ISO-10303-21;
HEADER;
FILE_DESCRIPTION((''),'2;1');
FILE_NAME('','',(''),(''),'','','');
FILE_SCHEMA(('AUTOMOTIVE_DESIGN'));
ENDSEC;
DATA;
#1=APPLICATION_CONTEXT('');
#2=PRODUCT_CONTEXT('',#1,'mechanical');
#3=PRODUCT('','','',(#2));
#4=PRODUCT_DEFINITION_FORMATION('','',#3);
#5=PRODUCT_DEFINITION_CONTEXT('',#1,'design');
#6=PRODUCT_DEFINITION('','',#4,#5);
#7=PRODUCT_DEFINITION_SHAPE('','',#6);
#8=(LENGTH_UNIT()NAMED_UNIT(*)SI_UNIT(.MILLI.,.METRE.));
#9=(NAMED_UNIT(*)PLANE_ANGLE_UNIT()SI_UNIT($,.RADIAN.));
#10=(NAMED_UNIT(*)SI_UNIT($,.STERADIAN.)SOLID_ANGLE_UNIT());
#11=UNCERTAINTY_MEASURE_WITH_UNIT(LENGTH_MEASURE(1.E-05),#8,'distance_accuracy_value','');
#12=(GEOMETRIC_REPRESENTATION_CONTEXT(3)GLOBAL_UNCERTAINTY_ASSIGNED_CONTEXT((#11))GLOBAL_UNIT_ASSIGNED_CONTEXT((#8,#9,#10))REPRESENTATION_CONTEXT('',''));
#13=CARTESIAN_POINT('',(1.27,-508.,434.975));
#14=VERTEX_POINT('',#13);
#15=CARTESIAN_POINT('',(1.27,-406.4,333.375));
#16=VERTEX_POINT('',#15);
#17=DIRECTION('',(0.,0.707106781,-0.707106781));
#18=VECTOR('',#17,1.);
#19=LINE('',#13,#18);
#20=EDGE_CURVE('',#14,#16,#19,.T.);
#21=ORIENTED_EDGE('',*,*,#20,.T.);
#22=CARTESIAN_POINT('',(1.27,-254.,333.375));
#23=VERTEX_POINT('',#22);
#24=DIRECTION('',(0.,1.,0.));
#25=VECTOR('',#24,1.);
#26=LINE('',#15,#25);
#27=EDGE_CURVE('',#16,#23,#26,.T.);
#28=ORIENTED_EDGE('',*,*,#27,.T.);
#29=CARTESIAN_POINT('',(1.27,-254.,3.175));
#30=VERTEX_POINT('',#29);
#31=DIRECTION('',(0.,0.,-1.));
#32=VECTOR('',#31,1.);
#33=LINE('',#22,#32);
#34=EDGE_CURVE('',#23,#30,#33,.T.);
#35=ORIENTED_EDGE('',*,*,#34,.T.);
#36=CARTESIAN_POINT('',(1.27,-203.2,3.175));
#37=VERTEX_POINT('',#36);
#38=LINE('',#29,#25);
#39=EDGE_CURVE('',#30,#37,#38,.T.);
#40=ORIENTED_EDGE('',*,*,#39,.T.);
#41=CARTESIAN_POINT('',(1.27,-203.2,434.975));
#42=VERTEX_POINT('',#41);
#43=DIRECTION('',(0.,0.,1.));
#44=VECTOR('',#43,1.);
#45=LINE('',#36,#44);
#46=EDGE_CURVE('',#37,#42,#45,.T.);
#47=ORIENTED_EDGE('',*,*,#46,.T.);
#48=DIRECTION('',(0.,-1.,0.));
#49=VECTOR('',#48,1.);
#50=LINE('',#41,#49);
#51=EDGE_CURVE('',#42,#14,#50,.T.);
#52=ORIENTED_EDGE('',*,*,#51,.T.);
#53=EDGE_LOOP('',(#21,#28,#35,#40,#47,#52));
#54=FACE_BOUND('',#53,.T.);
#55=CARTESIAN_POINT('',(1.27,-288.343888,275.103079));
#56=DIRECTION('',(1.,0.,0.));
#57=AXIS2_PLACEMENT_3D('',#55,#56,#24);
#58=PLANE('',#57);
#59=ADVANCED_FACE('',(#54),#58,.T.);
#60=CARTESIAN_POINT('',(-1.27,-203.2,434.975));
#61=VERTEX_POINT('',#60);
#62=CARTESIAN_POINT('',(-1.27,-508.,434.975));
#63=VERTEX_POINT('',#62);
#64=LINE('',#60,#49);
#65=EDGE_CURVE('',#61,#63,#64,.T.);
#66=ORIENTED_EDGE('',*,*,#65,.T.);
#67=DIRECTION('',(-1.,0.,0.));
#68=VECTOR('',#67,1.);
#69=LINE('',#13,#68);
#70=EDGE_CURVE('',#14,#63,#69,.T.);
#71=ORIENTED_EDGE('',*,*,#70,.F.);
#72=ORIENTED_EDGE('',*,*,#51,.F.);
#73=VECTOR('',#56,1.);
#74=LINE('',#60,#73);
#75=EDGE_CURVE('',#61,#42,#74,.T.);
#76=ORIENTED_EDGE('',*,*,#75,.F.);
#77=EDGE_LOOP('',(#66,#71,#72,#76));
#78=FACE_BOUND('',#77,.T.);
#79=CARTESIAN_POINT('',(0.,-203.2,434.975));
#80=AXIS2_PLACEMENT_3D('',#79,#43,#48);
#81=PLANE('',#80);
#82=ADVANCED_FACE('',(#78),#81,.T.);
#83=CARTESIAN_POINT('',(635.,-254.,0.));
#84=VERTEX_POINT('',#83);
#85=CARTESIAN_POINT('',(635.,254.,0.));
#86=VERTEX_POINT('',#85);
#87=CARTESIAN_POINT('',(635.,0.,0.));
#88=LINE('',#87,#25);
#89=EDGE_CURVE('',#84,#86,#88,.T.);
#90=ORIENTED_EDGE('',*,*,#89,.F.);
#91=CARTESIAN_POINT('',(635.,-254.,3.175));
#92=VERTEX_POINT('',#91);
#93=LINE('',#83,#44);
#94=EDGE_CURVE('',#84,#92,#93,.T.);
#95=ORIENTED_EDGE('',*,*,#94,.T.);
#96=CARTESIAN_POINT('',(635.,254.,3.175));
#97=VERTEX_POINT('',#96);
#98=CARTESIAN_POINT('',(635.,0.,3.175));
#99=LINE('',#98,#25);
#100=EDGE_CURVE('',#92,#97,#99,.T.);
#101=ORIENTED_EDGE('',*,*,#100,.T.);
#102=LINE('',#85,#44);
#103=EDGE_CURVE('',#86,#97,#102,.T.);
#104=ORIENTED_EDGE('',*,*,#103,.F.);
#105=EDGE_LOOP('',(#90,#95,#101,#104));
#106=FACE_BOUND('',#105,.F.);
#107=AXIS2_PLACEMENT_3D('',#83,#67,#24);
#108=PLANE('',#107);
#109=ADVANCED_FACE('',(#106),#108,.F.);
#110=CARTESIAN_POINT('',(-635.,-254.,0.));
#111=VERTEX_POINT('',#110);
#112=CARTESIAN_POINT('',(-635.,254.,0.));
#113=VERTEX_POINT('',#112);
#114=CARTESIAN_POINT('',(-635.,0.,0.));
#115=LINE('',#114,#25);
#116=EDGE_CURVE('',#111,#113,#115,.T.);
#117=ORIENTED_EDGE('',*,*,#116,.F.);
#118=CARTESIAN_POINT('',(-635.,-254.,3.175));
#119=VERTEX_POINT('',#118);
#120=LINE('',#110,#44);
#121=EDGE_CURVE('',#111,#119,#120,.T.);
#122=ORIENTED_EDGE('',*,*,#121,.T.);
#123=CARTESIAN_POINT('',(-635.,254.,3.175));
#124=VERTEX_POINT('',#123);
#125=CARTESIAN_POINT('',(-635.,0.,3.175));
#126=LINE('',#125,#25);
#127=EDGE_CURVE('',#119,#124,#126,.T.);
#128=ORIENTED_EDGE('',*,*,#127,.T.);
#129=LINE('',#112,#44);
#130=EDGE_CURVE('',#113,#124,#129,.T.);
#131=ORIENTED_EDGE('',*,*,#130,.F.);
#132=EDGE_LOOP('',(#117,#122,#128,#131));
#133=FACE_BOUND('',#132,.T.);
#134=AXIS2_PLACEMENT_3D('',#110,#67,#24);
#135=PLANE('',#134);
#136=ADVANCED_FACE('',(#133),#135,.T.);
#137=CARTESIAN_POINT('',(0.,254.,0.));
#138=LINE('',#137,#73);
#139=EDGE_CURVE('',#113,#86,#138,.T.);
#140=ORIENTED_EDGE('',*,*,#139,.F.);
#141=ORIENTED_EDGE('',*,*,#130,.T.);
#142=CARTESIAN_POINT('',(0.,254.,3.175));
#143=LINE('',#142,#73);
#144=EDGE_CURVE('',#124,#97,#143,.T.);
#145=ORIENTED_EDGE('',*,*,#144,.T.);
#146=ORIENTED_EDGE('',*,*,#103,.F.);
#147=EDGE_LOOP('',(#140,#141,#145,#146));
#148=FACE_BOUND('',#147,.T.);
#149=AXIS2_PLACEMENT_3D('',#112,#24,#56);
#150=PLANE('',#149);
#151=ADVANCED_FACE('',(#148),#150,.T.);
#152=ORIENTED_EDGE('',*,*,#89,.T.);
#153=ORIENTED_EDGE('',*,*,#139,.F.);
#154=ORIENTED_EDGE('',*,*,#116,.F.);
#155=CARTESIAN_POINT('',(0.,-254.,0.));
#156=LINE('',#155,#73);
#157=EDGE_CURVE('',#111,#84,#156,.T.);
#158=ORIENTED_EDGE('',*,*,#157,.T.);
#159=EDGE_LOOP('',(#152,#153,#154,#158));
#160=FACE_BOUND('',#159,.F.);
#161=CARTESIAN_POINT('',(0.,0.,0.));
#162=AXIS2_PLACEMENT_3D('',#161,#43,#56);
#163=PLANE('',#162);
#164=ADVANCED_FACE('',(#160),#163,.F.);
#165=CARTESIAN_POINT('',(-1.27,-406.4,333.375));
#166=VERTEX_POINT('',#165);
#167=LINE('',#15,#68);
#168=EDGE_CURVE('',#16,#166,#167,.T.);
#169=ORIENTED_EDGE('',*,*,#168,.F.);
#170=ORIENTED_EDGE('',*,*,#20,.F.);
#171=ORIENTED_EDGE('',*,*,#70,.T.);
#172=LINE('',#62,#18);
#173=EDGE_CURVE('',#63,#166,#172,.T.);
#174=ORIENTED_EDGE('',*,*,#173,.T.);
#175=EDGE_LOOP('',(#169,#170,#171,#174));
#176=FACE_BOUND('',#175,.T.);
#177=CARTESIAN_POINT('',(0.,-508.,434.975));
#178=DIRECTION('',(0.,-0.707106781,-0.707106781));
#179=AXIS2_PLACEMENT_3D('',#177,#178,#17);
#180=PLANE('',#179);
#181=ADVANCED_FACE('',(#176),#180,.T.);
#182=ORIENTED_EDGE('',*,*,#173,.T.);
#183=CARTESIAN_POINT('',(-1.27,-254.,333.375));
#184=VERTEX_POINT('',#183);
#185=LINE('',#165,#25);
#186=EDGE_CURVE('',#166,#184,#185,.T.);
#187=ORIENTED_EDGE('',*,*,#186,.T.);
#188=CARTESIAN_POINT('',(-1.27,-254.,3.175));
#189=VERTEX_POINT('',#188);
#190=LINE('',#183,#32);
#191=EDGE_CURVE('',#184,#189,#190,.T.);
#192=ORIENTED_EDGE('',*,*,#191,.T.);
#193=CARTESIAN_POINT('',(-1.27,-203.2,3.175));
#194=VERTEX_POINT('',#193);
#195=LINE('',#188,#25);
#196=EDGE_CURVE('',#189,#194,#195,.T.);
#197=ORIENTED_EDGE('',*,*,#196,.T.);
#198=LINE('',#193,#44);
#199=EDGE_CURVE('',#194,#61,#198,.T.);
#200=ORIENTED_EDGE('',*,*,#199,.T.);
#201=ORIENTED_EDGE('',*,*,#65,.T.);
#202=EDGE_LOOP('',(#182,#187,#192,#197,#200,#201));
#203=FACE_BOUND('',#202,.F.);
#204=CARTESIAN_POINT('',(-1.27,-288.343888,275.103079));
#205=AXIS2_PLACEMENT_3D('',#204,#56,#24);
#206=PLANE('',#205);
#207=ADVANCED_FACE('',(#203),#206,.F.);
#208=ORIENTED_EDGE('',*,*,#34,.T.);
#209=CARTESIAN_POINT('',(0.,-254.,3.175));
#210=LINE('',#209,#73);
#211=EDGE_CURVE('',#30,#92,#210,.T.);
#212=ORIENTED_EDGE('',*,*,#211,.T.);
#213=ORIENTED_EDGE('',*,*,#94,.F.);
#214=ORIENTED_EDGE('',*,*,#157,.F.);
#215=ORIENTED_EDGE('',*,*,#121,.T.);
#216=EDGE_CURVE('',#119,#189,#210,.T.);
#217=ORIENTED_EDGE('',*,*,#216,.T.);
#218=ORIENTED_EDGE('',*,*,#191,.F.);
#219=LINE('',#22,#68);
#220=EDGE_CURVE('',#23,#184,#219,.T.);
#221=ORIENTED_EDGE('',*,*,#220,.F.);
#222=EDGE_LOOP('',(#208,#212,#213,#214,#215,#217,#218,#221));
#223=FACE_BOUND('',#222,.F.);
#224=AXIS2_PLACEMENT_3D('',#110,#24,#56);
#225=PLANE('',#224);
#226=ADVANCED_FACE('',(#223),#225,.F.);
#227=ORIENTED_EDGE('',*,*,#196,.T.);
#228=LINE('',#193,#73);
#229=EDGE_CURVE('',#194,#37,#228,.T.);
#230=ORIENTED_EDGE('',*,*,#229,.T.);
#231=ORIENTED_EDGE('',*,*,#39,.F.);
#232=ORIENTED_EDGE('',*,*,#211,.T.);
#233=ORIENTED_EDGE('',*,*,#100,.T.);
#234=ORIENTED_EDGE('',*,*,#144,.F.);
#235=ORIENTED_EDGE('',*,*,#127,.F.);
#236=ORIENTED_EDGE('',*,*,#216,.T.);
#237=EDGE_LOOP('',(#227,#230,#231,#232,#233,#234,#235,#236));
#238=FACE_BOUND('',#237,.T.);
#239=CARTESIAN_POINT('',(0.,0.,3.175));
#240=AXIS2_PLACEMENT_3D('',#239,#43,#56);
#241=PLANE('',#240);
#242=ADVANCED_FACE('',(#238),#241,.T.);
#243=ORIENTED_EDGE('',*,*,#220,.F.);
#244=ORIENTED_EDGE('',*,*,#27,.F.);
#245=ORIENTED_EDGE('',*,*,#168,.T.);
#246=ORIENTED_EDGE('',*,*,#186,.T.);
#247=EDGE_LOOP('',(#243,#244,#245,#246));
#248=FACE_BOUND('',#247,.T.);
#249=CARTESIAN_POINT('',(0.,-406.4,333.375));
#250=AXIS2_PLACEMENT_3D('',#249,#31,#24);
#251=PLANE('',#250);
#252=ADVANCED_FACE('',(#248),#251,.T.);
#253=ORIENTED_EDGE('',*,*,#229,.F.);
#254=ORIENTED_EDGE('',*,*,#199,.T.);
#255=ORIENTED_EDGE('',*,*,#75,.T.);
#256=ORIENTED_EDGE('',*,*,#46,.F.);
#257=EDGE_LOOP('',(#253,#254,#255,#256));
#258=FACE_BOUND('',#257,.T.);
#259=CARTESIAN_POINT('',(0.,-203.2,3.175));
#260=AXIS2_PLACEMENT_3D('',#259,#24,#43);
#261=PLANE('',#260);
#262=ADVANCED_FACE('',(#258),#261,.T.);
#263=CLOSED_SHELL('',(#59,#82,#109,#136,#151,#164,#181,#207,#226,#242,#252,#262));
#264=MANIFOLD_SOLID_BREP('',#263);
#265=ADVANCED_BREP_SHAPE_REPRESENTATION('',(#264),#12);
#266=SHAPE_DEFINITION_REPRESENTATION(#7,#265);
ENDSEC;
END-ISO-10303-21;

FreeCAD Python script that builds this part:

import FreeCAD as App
import Part
import Sketcher

V = App.Vector
Q = App.Units.Quantity

doc = App.newDocument("Part")
body = doc.addObject("PartDesign::Body", "Body")

sketch1 = body.newObject("Sketcher::SketchObject", "Sketch")
sketch1.AttachmentSupport = (doc.getObject("XY_Plane"), [""])
sketch1.MapMode = "FlatFace"
sketch1.addGeometry([
    Part.LineSegment(V(-635, 254, 0), V(-635, -254, 0)),
    Part.LineSegment(V(-635, -254, 0), V(635, -254, 0)),
    Part.LineSegment(V(635, -254, 0), V(635, 254, 0)),
    Part.LineSegment(V(635, 254, 0), V(-635, 254, 0)),
], False)
sketch1.addConstraint([
    Sketcher.Constraint("Coincident", 0, 2, 1, 1),
    Sketcher.Constraint("Coincident", 1, 2, 2, 1),
    Sketcher.Constraint("Coincident", 2, 2, 3, 1),
    Sketcher.Constraint("Coincident", 3, 2, 0, 1),
    Sketcher.Constraint("Vertical", 0),
    Sketcher.Constraint("Horizontal", 1),
    Sketcher.Constraint("Vertical", 2),
    Sketcher.Constraint("Horizontal", 3),
    Sketcher.Constraint("Symmetric", 0, 2, 2, 2, -1, 1),
    Sketcher.Constraint("DistanceX", 1, 1, 1, 2, Q("50 in")),
    Sketcher.Constraint("DistanceY", 0, 2, 0, 1, Q("20 in")),
])
pad1 = body.newObject("PartDesign::Pad", "Pad")
pad1.Profile = sketch1
pad1.Length = Q("0.125 in")

sketch2 = body.newObject("Sketcher::SketchObject", "Sketch001")
sketch2.AttachmentSupport = (doc.getObject("YZ_Plane"), [""])
sketch2.MapMode = "FlatFace"
sketch2.addGeometry([
    Part.LineSegment(V(-254, 333.375, 0), V(-254, 3.175, 0)),
    Part.LineSegment(V(-254, 3.175, 0), V(-203.2, 3.175, 0)),
    Part.LineSegment(V(-203.2, 3.175, 0), V(-203.2, 434.975, 0)),
    Part.LineSegment(V(-203.2, 434.975, 0), V(-508, 434.975, 0)),
    Part.LineSegment(V(-508, 434.975, 0), V(-406.4, 333.375, 0)),
    Part.LineSegment(V(-406.4, 333.375, 0), V(-254, 333.375, 0)),
], False)
sketch2.addConstraint([
    Sketcher.Constraint("Coincident", 0, 2, 1, 1),
    Sketcher.Constraint("Coincident", 1, 2, 2, 1),
    Sketcher.Constraint("Coincident", 2, 2, 3, 1),
    Sketcher.Constraint("Coincident", 3, 2, 4, 1),
    Sketcher.Constraint("Coincident", 4, 2, 5, 1),
    Sketcher.Constraint("Coincident", 5, 2, 0, 1),
    Sketcher.Constraint("Vertical", 0),
    Sketcher.Constraint("Horizontal", 1),
    Sketcher.Constraint("Vertical", 2),
    Sketcher.Constraint("Horizontal", 3),
    Sketcher.Constraint("Horizontal", 5),
    Sketcher.Constraint("DistanceX", 1, 1, 1, 2, Q("2 in")),
    Sketcher.Constraint("DistanceX", 3, 2, 3, 1, Q("12 in")),
    Sketcher.Constraint("DistanceX", 5, 1, 5, 2, Q("6 in")),
    Sketcher.Constraint("DistanceY", 0, 2, 0, 1, Q("13 in")),
    Sketcher.Constraint("DistanceY", 2, 1, 2, 2, Q("17 in")),
    Sketcher.Constraint("DistanceX", 0, 2, -1, 1, Q("10 in")),
    Sketcher.Constraint("DistanceY", -1, 1, 0, 2, Q("0.125 in")),
])
pad2 = body.newObject("PartDesign::Pad", "Pad001")
pad2.Profile = sketch2
pad2.Length = Q("0.1 in")
pad2.Midplane = True

doc.recompute()
